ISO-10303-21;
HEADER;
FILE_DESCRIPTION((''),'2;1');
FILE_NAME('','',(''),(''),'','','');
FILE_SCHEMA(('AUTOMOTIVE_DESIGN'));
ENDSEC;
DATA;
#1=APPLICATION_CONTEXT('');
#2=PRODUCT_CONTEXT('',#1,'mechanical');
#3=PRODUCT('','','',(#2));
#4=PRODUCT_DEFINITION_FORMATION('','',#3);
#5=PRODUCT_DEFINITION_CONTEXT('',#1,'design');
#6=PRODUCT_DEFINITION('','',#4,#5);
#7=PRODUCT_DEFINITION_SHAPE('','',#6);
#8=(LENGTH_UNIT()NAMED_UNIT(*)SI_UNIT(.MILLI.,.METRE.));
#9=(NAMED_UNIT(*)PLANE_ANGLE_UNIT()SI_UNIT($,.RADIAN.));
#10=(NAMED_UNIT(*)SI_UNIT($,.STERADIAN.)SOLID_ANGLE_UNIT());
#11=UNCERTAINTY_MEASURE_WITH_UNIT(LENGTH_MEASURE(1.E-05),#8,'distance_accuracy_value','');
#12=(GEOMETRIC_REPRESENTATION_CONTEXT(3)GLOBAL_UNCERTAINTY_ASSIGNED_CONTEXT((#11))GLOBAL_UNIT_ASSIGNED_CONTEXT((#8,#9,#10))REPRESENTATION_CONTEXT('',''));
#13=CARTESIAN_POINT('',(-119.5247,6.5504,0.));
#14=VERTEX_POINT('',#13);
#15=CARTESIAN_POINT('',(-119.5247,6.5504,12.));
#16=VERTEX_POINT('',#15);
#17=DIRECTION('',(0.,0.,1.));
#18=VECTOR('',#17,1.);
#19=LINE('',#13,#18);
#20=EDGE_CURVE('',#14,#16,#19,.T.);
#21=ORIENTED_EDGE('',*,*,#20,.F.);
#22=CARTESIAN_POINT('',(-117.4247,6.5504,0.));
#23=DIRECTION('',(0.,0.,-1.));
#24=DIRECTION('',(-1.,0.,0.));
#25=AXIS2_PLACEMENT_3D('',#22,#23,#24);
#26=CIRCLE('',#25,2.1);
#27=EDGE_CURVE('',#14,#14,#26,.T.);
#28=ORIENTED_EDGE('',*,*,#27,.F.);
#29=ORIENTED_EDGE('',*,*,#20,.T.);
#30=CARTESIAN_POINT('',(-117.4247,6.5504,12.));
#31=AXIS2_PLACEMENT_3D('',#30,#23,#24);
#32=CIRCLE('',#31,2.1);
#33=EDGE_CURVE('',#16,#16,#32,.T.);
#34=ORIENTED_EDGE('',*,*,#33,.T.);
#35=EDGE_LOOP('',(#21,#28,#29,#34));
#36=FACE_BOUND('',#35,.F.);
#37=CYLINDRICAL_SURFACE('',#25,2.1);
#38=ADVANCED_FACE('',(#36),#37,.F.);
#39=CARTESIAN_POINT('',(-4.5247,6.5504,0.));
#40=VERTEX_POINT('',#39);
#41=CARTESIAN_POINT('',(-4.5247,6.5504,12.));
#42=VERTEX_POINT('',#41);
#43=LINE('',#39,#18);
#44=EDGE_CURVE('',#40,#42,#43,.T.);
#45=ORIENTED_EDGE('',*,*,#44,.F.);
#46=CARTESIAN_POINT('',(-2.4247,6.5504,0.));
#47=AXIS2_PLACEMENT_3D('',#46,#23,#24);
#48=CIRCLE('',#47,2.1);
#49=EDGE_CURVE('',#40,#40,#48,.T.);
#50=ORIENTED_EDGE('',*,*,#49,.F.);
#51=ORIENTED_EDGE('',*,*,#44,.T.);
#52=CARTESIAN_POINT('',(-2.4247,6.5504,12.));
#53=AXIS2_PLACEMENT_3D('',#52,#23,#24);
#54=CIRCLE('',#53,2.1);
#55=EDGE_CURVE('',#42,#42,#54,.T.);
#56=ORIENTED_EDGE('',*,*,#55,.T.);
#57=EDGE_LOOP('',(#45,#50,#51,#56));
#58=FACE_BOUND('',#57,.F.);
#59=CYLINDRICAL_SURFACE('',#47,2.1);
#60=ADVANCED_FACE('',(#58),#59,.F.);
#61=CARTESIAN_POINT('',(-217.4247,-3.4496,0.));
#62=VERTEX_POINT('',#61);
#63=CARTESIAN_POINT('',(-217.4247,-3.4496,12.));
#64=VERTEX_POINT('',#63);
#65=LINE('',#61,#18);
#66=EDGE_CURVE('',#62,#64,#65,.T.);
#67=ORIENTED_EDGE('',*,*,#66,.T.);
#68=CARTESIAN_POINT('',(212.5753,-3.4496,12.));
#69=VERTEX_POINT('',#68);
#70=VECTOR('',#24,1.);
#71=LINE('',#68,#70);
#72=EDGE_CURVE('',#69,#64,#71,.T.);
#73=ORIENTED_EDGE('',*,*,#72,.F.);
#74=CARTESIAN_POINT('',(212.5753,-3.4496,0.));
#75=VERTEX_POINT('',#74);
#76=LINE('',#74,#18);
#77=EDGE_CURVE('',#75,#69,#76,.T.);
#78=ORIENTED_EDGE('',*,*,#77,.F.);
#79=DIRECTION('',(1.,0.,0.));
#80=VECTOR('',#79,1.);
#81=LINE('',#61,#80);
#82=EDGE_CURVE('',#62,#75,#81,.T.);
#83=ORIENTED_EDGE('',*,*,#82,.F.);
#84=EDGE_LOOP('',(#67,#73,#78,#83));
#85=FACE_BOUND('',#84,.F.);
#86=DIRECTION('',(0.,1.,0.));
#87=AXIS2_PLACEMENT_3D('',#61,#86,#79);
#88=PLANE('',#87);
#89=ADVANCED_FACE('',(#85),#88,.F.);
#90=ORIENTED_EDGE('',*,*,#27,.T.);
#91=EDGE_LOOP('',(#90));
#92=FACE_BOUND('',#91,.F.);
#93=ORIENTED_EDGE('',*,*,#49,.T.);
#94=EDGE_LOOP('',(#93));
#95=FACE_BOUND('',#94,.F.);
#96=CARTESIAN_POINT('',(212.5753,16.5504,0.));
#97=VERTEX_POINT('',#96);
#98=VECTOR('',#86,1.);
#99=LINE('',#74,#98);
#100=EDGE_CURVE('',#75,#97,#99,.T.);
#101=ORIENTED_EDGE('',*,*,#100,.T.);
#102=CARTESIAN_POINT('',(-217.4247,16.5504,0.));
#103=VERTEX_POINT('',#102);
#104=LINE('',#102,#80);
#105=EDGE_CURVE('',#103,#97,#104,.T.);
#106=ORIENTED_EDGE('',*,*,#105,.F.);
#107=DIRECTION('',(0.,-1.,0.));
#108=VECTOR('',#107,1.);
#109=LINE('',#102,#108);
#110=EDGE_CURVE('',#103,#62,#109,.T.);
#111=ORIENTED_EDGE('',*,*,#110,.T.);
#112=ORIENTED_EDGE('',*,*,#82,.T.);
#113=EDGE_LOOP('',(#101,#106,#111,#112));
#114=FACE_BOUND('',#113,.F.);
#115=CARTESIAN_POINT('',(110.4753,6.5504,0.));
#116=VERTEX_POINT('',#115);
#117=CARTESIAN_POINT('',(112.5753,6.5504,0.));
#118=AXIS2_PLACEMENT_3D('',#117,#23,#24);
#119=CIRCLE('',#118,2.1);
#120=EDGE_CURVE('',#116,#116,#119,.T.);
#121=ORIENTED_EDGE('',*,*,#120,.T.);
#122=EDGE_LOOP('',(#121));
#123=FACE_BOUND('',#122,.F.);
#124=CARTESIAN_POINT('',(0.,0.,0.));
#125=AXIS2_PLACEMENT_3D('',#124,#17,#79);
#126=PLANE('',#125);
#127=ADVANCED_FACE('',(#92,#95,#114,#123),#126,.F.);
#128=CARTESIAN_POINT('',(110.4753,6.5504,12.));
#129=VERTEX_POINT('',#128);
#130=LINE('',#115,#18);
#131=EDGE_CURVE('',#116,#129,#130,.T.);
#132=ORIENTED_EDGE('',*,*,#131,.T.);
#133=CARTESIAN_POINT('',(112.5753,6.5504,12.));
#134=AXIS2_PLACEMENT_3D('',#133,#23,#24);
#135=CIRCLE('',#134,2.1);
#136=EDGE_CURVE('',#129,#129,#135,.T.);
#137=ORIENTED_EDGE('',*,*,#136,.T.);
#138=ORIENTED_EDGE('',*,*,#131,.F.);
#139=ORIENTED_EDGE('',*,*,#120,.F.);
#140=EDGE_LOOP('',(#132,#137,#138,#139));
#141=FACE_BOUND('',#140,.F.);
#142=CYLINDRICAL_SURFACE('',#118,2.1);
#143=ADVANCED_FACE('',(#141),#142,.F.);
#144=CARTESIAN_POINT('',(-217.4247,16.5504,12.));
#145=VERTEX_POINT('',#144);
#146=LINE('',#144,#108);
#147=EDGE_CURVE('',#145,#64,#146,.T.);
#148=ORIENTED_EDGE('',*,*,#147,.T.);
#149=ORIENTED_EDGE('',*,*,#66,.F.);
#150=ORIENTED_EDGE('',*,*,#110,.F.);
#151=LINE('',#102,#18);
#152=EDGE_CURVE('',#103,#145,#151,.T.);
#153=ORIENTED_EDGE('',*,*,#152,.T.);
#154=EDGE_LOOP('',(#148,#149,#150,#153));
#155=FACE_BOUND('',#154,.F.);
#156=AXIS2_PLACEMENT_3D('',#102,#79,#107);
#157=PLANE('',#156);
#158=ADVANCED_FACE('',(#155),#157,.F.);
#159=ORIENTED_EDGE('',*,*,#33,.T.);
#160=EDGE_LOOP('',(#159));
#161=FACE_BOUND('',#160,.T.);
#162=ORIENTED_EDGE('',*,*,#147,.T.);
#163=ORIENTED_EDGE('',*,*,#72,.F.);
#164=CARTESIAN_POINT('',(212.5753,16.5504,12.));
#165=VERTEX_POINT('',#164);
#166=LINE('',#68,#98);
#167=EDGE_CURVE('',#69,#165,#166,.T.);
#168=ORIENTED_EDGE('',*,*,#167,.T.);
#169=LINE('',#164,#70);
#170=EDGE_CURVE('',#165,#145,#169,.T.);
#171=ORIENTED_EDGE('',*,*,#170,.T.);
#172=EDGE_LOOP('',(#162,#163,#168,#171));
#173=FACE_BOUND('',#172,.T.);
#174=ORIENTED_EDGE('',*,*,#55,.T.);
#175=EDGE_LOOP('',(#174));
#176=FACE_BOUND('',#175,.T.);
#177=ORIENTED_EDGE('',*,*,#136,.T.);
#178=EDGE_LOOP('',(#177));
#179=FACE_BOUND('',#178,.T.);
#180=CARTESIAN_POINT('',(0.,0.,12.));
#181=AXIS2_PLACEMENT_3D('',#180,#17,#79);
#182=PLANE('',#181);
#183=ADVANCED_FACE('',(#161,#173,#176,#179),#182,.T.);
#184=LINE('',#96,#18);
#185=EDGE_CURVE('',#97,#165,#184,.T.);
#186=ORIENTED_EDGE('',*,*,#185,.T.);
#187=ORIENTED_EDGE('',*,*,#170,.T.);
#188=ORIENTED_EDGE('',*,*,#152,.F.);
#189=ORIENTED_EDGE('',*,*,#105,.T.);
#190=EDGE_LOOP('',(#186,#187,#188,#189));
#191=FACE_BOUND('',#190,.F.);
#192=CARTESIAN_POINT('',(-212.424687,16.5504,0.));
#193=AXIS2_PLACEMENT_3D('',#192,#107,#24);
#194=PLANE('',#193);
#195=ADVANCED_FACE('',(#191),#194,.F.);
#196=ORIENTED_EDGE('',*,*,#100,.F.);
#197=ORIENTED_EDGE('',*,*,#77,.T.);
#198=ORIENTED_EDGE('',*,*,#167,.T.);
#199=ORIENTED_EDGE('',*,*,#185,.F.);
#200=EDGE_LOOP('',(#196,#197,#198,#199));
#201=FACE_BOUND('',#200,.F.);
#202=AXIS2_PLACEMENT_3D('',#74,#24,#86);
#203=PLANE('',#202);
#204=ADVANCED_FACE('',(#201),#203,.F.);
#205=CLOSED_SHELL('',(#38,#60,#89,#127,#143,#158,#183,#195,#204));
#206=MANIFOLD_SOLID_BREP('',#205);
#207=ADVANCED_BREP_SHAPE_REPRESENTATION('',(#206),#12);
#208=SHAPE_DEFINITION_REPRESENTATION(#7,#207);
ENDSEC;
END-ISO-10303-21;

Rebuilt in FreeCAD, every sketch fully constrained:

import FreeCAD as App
import Part
import Sketcher
Q = App.Units.Quantity

doc = App.newDocument("Part")
body = doc.addObject("PartDesign::Body", "Body")

# Sketch on XY plane
sketch1 = body.newObject("Sketcher::SketchObject", "Sketch")
sketch1.AttachmentSupport = (doc.getObject("XY_Plane"), [""])
sketch1.MapMode = "FlatFace"
sketch1.addGeometry(Part.LineSegment(App.Vector(-217.4247, -3.4496, 0), App.Vector(212.5753, -3.4496, 0)), False)
sketch1.addGeometry(Part.LineSegment(App.Vector(212.5753, -3.4496, 0), App.Vector(212.5753, 16.5504, 0)), False)
sketch1.addGeometry(Part.LineSegment(App.Vector(212.5753, 16.5504, 0), App.Vector(-217.4247, 16.5504, 0)), False)
sketch1.addGeometry(Part.LineSegment(App.Vector(-217.4247, 16.5504, 0), App.Vector(-217.4247, -3.4496, 0)), False)
sketch1.addConstraint(Sketcher.Constraint("Coincident", 0, 2, 1, 1))
sketch1.addConstraint(Sketcher.Constraint("Coincident", 1, 2, 2, 1))
sketch1.addConstraint(Sketcher.Constraint("Coincident", 2, 2, 3, 1))
sketch1.addConstraint(Sketcher.Constraint("Coincident", 3, 2, 0, 1))
sketch1.addConstraint(Sketcher.Constraint("Horizontal", 0))
sketch1.addConstraint(Sketcher.Constraint("Vertical", 1))
sketch1.addConstraint(Sketcher.Constraint("Horizontal", 2))
sketch1.addConstraint(Sketcher.Constraint("Vertical", 3))
sketch1.addConstraint(Sketcher.Constraint("DistanceX", 0, 1, 0, 2, Q("430 mm")))
sketch1.addConstraint(Sketcher.Constraint("DistanceY", 1, 1, 1, 2, Q("20 mm")))
sketch1.addConstraint(Sketcher.Constraint("DistanceX", -1, 1, 0, 2, Q("212.5753 mm")))
sketch1.addConstraint(Sketcher.Constraint("DistanceY", 0, 2, -1, 1, Q("3.4496 mm")))
pad1 = body.newObject("PartDesign::Pad", "Pad")
pad1.Profile = sketch1
pad1.Length = 12

# Sketch on XY plane
sketch2 = body.newObject("Sketcher::SketchObject", "Sketch001")
sketch2.AttachmentSupport = (doc.getObject("XY_Plane"), [""])
sketch2.MapMode = "FlatFace"
sketch2.addGeometry(Part.Circle(App.Vector(-117.4247, 6.5504, 0), App.Vector(0, 0, 1), 2.1), False)
sketch2.addGeometry(Part.Circle(App.Vector(112.5753, 6.5504, 0), App.Vector(0, 0, 1), 2.1), False)
sketch2.addGeometry(Part.Circle(App.Vector(-2.4247, 6.5504, 0), App.Vector(0, 0, 1), 2.1), False)
sketch2.addConstraint(Sketcher.Constraint("Equal", 0, 1))
sketch2.addConstraint(Sketcher.Constraint("Equal", 1, 2))
sketch2.addConstraint(Sketcher.Constraint("Horizontal", 0, 3, 1, 3))
sketch2.addConstraint(Sketcher.Constraint("Horizontal", 1, 3, 2, 3))
sketch2.addConstraint(Sketcher.Constraint("Diameter", 0, Q("4.2 mm")))
sketch2.addConstraint(Sketcher.Constraint("DistanceX", 0, 3, 1, 3, Q("230 mm")))
sketch2.addConstraint(Sketcher.Constraint("DistanceX", 0, 3, 2, 3, Q("115 mm")))
sketch2.addConstraint(Sketcher.Constraint("DistanceX", 0, 3, -1, 1, Q("117.4247 mm")))
sketch2.addConstraint(Sketcher.Constraint("DistanceY", -1, 1, 0, 3, Q("6.5504 mm")))
pocket1 = body.newObject("PartDesign::Pocket", "Pocket")
pocket1.Profile = sketch2
pocket1.Type = "ThroughAll"
pocket1.Reversed = True

doc.recompute()
